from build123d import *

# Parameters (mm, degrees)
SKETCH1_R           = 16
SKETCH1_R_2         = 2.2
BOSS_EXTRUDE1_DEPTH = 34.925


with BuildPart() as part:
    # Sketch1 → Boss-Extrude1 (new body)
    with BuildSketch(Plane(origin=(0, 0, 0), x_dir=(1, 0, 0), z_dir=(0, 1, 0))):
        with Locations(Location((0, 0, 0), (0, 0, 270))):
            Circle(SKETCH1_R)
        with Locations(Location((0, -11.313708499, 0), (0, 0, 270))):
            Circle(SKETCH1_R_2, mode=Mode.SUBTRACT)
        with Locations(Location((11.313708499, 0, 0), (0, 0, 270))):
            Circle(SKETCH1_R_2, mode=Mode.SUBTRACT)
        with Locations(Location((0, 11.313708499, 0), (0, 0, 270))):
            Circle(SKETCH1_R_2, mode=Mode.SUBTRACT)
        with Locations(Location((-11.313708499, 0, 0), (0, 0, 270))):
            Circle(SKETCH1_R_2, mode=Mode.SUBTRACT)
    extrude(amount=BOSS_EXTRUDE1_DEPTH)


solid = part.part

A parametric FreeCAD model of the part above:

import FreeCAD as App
import Part
import Sketcher

V = App.Vector
Q = App.Units.Quantity

doc = App.newDocument("Part")
body = doc.addObject("PartDesign::Body", "Body")

# Sketch on XZ plane
sketch1 = body.newObject("Sketcher::SketchObject", "Sketch")
sketch1.AttachmentSupport = (doc.getObject("XZ_Plane"), [""])
sketch1.MapMode = "FlatFace"
sketch1.addGeometry(Part.Circle(V(0, 0, 0), V(0, 0, 1), 16), False)
sketch1.addGeometry(Part.Circle(V(0, -11.313708, 0), V(0, 0, 1), 2.2), False)
sketch1.addGeometry(Part.Circle(V(-11.313708, 0, 0), V(0, 0, 1), 2.2), False)
sketch1.addGeometry(Part.Circle(V(11.313708, 0, 0), V(0, 0, 1), 2.2), False)
sketch1.addGeometry(Part.Circle(V(0, 11.313708, 0), V(0, 0, 1), 2.2), False)
sketch1.addConstraint(Sketcher.Constraint("Coincident", 0, 3, -1, 1))
sketch1.addConstraint(Sketcher.Constraint("Equal", 1, 2))
sketch1.addConstraint(Sketcher.Constraint("Equal", 2, 3))
sketch1.addConstraint(Sketcher.Constraint("Equal", 3, 4))
sketch1.addConstraint(Sketcher.Constraint("Symmetric", 2, 3, 3, 3, -1, 1))
sketch1.addConstraint(Sketcher.Constraint("Symmetric", 1, 3, 4, 3, -1, 1))
sketch1.addConstraint(Sketcher.Constraint("PointOnObject", 1, 3, -2))
sketch1.addConstraint(Sketcher.Constraint("PointOnObject", 2, 3, -1))
sketch1.addConstraint(Sketcher.Constraint("Diameter", 0, Q("32 mm")))
sketch1.addConstraint(Sketcher.Constraint("Diameter", 1, Q("4.4 mm")))
sketch1.addConstraint(Sketcher.Constraint("DistanceY", 1, 3, -1, 1, Q("11.313708 mm")))
sketch1.addConstraint(Sketcher.Constraint("DistanceX", 2, 3, -1, 1, Q("11.313708 mm")))
pad1 = body.newObject("PartDesign::Pad", "Pad")
pad1.Profile = sketch1
pad1.Length = 34.925
pad1.Reversed = True

doc.recompute()
